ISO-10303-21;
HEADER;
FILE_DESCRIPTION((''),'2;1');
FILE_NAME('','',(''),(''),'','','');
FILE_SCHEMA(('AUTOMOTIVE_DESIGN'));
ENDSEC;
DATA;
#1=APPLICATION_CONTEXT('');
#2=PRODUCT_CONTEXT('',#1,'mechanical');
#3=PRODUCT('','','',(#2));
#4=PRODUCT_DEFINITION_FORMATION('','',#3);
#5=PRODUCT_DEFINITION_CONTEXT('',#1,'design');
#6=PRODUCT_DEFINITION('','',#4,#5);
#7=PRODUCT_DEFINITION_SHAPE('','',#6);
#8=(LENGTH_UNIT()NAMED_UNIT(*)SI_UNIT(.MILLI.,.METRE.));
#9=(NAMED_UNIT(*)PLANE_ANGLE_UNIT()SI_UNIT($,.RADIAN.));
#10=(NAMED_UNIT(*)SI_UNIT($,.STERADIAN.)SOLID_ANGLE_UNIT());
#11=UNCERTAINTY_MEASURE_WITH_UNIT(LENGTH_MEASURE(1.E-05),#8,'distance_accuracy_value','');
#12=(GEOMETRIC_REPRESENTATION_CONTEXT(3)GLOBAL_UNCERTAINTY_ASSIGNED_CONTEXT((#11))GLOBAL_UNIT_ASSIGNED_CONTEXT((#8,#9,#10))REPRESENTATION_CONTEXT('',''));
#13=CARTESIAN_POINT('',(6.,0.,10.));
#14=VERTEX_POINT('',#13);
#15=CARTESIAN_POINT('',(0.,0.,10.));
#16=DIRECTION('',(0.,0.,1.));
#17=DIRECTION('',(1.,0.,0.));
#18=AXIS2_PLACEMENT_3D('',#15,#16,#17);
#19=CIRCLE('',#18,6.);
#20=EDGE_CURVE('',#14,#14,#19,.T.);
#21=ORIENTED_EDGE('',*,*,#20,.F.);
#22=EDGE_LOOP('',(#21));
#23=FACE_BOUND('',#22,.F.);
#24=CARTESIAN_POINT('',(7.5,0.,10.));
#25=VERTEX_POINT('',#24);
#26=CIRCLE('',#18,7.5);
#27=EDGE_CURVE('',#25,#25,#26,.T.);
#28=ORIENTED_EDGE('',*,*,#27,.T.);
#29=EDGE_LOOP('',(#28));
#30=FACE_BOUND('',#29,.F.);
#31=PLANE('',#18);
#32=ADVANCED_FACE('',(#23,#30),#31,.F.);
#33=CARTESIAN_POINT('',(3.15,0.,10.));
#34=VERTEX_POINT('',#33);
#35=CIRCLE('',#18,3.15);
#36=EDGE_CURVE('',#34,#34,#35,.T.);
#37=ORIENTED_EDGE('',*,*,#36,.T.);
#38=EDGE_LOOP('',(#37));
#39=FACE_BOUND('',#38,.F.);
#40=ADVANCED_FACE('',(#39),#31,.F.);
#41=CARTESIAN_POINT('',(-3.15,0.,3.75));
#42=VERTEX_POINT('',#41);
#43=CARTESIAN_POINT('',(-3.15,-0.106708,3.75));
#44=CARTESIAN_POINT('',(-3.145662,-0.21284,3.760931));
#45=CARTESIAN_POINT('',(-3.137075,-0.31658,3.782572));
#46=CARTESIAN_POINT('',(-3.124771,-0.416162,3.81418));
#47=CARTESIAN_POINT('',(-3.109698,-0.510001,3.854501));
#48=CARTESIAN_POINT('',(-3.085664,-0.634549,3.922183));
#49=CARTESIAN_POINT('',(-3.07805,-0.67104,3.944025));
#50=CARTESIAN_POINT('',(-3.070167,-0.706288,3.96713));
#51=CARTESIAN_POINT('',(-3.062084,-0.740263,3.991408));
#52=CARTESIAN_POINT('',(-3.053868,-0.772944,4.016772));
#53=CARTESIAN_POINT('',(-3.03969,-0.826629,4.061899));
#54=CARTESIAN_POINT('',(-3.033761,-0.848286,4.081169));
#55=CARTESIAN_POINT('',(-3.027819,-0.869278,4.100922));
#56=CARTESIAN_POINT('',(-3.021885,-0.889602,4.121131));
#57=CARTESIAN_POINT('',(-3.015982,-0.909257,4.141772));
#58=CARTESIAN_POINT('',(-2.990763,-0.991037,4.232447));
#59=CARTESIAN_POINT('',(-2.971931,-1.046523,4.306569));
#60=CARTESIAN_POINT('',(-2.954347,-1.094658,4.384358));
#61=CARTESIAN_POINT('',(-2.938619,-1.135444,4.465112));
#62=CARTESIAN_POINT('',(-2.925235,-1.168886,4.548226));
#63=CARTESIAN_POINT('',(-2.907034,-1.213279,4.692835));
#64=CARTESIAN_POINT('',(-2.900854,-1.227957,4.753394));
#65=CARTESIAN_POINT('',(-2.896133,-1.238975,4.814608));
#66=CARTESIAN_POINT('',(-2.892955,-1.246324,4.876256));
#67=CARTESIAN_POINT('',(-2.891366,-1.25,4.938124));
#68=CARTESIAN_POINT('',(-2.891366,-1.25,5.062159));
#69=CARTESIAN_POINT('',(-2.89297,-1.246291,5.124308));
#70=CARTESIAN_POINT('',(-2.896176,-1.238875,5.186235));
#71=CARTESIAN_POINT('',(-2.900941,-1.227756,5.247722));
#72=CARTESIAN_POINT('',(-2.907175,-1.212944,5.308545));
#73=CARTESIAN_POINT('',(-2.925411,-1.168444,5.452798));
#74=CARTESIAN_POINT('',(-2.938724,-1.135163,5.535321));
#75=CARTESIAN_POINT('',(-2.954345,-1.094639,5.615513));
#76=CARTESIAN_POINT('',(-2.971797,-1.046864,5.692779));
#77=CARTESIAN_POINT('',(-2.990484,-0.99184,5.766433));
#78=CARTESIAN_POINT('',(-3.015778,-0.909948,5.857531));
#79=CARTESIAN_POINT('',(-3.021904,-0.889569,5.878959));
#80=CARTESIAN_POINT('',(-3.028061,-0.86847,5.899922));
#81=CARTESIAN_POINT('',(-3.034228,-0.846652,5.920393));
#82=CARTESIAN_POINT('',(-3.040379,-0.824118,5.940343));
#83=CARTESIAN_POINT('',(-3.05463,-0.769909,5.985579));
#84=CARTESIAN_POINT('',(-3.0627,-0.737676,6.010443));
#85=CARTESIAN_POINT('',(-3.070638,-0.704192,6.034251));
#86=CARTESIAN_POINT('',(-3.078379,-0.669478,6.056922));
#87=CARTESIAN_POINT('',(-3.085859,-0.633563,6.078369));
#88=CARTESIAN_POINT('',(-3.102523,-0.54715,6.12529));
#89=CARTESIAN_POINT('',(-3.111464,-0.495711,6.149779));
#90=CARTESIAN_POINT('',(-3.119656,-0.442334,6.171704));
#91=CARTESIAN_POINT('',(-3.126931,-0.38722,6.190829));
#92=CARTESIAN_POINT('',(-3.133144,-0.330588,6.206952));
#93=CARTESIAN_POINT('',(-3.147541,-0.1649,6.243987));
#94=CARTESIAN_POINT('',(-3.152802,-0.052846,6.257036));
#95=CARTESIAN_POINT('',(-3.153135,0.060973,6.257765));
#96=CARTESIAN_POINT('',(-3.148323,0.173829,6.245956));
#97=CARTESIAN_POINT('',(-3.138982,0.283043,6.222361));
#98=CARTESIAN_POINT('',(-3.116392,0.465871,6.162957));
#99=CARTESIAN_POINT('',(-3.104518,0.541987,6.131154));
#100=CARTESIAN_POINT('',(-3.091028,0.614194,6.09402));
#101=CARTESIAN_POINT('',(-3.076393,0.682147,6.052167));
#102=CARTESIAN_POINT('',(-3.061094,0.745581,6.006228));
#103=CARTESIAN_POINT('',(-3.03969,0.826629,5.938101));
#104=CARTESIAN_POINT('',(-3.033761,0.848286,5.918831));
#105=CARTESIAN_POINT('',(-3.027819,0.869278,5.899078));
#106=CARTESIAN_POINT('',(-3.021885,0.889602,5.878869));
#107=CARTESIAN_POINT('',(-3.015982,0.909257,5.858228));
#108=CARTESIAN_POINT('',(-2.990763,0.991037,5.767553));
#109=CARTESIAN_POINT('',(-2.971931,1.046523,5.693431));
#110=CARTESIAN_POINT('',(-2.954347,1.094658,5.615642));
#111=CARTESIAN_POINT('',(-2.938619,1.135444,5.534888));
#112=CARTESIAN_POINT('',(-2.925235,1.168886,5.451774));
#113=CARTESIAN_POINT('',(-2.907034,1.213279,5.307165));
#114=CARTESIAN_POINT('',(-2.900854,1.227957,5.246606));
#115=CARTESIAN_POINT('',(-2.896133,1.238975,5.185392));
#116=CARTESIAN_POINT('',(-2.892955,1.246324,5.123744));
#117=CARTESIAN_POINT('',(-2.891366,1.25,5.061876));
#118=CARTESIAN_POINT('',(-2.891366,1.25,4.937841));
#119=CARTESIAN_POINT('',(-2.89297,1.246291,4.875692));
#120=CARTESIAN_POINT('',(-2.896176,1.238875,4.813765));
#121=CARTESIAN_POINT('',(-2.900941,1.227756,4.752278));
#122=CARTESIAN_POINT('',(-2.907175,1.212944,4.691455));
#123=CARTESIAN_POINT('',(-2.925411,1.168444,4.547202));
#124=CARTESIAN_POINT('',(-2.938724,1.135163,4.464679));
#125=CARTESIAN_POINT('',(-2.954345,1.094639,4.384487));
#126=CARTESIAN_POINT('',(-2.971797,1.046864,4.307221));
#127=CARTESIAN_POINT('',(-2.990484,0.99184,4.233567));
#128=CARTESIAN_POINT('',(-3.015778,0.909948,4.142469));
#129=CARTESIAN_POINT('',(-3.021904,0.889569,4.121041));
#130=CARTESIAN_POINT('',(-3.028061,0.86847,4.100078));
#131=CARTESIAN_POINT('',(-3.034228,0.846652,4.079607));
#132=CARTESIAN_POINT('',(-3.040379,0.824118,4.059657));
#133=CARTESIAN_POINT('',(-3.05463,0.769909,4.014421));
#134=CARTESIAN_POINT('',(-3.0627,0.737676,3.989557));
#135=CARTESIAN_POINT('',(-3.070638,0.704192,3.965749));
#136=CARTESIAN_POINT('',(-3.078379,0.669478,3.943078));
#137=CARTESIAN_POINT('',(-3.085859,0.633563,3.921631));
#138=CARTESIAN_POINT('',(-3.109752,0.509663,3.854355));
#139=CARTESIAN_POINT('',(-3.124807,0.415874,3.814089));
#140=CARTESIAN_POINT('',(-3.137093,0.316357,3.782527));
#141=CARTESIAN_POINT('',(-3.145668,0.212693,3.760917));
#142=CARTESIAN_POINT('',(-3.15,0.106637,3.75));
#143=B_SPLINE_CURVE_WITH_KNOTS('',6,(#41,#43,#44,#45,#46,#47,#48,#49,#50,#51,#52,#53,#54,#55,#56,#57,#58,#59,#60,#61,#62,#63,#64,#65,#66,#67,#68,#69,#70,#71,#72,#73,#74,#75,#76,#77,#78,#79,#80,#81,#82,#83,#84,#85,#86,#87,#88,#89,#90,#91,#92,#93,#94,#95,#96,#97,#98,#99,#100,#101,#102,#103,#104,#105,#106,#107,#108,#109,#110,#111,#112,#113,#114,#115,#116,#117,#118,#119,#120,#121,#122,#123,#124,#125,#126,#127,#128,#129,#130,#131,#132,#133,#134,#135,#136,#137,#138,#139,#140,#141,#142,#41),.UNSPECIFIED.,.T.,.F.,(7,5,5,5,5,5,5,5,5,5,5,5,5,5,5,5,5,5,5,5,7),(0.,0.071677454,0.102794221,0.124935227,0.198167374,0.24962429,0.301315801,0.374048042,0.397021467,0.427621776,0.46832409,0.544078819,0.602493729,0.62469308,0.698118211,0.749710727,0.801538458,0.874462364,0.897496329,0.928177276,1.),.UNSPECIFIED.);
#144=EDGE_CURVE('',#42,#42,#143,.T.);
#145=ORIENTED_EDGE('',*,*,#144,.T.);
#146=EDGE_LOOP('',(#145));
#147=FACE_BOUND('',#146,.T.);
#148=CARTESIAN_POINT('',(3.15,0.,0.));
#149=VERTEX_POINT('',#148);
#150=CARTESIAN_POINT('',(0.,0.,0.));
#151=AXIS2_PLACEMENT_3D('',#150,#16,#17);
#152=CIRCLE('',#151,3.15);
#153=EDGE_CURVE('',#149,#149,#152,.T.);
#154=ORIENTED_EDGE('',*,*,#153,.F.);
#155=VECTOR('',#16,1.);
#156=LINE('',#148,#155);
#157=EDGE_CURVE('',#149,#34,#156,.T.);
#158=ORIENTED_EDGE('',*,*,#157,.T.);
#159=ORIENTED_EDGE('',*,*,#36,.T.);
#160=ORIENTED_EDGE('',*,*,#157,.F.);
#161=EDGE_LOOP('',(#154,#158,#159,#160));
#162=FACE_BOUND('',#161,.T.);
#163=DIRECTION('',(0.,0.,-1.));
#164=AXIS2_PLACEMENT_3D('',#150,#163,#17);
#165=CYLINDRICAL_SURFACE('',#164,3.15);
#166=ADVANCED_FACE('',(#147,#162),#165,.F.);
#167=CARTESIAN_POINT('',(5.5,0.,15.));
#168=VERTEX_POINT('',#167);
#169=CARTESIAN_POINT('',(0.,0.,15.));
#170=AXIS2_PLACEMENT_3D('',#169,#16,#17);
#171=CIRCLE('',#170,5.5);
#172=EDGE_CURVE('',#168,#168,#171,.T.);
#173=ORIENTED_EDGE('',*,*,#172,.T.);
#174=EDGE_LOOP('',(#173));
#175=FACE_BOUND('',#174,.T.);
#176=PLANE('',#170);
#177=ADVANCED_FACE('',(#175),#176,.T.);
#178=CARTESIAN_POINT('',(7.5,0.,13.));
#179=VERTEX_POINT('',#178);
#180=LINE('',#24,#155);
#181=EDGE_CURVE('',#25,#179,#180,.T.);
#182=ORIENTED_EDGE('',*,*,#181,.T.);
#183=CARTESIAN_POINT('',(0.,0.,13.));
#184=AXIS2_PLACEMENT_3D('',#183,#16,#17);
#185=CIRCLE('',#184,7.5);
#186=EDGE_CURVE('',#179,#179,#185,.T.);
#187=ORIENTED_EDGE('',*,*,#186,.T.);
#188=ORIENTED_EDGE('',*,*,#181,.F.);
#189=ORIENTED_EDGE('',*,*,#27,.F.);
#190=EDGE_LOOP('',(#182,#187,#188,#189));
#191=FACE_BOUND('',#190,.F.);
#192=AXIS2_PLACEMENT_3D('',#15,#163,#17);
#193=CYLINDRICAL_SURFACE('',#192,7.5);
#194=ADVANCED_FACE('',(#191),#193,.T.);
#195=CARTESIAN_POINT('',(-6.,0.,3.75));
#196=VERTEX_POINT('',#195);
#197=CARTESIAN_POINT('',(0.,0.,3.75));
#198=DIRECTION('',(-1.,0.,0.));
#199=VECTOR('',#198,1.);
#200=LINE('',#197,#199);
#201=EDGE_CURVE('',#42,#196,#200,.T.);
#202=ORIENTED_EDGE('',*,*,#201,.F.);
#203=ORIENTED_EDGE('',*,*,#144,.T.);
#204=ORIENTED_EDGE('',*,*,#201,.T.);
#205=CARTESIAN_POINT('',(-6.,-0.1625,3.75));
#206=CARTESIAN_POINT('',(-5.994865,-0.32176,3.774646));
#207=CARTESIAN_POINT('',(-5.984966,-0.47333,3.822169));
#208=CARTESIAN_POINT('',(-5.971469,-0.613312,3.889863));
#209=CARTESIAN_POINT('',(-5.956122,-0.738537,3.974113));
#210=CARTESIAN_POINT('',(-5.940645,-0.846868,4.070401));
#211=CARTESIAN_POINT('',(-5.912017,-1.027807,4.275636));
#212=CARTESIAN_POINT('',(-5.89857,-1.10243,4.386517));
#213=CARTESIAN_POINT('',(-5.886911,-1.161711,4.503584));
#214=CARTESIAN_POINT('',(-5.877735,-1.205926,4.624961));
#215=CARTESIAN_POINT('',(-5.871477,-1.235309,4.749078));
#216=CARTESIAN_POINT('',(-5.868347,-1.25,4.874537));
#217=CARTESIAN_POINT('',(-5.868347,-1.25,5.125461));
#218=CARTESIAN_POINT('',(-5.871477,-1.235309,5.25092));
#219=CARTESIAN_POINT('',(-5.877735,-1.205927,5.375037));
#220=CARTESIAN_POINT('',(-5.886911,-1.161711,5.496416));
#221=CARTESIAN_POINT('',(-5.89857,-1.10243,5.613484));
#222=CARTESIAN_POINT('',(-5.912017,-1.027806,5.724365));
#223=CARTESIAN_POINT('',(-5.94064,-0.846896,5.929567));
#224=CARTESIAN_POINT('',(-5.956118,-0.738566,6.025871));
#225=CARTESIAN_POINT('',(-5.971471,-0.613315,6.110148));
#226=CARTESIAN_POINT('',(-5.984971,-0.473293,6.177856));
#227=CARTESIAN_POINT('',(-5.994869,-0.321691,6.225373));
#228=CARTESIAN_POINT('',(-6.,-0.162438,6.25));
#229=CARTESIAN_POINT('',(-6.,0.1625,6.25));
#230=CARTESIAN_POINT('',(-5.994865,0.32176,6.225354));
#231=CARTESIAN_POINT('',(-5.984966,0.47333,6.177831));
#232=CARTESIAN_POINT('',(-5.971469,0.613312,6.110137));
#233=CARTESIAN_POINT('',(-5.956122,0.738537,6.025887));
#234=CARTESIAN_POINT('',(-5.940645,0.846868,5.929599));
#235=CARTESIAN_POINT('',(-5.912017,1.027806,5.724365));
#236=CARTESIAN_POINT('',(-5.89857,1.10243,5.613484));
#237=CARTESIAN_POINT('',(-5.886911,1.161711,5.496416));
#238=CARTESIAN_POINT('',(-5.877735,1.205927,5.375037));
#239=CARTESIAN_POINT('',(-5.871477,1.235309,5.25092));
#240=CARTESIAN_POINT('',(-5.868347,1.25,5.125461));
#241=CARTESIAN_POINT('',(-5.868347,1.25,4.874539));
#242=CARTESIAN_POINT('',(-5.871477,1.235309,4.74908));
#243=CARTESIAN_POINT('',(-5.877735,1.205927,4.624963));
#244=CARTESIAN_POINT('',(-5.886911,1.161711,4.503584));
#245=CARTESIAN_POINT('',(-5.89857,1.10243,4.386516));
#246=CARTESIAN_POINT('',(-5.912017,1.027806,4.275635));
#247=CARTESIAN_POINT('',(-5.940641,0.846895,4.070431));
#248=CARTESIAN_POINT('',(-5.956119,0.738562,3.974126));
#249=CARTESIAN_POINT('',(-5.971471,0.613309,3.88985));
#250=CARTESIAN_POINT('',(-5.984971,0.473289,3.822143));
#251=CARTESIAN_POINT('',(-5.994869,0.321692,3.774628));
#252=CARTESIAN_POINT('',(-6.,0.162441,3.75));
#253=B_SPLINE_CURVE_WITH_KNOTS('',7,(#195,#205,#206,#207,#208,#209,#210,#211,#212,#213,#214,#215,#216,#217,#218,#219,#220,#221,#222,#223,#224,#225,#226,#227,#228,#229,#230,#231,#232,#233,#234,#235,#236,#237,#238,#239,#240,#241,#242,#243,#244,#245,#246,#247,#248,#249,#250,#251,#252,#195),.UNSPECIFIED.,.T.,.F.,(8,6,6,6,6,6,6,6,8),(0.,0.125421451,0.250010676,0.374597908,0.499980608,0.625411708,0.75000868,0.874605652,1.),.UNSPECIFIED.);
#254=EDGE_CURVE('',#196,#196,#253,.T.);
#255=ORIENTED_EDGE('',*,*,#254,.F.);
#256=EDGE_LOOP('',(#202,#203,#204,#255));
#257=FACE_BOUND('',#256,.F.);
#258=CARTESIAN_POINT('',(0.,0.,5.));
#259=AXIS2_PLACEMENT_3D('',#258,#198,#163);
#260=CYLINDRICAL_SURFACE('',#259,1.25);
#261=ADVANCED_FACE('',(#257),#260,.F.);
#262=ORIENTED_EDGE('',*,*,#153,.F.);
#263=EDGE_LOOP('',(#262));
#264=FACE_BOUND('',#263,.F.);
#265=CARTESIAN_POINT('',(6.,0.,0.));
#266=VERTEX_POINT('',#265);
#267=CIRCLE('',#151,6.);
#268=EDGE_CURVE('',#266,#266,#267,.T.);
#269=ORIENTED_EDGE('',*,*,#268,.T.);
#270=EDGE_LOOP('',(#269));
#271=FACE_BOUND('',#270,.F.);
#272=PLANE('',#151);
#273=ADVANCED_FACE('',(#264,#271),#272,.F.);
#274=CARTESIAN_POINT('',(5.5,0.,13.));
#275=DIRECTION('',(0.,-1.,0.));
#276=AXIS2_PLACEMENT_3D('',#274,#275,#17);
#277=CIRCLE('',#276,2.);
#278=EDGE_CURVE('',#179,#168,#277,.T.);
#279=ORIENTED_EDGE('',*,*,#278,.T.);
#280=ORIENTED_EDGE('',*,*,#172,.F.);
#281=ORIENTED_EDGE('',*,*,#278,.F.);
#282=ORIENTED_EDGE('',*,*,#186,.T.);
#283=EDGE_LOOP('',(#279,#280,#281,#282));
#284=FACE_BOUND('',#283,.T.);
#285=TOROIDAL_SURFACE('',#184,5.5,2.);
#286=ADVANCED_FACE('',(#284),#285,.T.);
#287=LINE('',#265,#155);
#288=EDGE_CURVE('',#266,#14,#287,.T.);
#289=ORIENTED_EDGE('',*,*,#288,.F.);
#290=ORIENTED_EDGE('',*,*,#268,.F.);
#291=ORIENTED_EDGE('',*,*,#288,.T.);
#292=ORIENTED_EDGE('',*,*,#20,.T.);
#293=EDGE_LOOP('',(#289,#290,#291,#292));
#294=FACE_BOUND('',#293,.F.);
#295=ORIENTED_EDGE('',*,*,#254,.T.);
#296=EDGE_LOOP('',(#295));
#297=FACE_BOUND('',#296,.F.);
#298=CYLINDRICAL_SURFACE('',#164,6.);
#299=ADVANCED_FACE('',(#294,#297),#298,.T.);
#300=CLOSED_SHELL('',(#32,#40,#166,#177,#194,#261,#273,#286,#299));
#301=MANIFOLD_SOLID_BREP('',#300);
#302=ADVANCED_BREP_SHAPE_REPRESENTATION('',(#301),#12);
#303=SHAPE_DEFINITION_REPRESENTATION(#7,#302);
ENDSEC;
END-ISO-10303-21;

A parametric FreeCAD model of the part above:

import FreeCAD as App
import Part
import Sketcher
Q = App.Units.Quantity


def edges_at(feature, points):
    """Names of the edges that pass closest to the given points."""
    edges = feature.Shape.Edges
    near = lambda p: min(range(len(edges)), key=lambda i: edges[i].distToShape(Part.Vertex(*p))[0])
    return sorted({f"Edge{near(p) + 1}" for p in points})

doc = App.newDocument("Part")
body = doc.addObject("PartDesign::Body", "Body")

# Sketch on XY plane
sketch1 = body.newObject("Sketcher::SketchObject", "Sketch")
sketch1.AttachmentSupport = (doc.getObject("XY_Plane"), [""])
sketch1.MapMode = "FlatFace"
sketch1.addGeometry([
    Part.Circle(App.Vector(0, 0, 0), App.Vector(0, 0, 1), 6),
    Part.Circle(App.Vector(0, 0, 0), App.Vector(0, 0, 1), 3.15),
], False)
sketch1.addConstraint([
    Sketcher.Constraint("Coincident", 0, 3, -1, 1),
    Sketcher.Constraint("Coincident", 1, 3, -1, 1),
    Sketcher.Constraint("Diameter", 0, Q("12 mm")),
    Sketcher.Constraint("Diameter", 1, Q("6.3 mm")),
])
pad1 = body.newObject("PartDesign::Pad", "Pad")
pad1.Profile = sketch1
pad1.Length = 10

# Sketch on XY plane
sketch2 = body.newObject("Sketcher::SketchObject", "Sketch001")
sketch2.AttachmentSupport = (doc.getObject("XY_Plane"), [""])
sketch2.MapMode = "FlatFace"
sketch2.AttachmentOffset = App.Placement(App.Vector(0, 0, 10), App.Rotation())
sketch2.addGeometry(Part.Circle(App.Vector(0, 0, 0), App.Vector(0, 0, 1), 7.5), False)
sketch2.addConstraint([
    Sketcher.Constraint("Coincident", 0, 3, -1, 1),
    Sketcher.Constraint("Diameter", 0, Q("15 mm")),
])
pad2 = body.newObject("PartDesign::Pad", "Pad001")
pad2.Profile = sketch2
pad2.Length = 5
doc.recompute()

fillet = body.newObject("PartDesign::Fillet", "Fillet")
fillet.Base = (pad2, edges_at(pad2, [(-7.5, 0, 15)]))
fillet.Radius = 2

# Sketch on YZ plane
sketch3 = body.newObject("Sketcher::SketchObject", "Sketch002")
sketch3.AttachmentSupport = (doc.getObject("YZ_Plane"), [""])
sketch3.MapMode = "FlatFace"
sketch3.addGeometry(Part.Circle(App.Vector(0, 5, 0), App.Vector(0, 0, 1), 1.25), False)
sketch3.addConstraint([
    Sketcher.Constraint("PointOnObject", 0, 3, -2),
    Sketcher.Constraint("Diameter", 0, Q("2.5 mm")),
    Sketcher.Constraint("DistanceY", -1, 1, 0, 3, Q("5 mm")),
])
doc.recompute()
hole = body.newObject("PartDesign::Hole", "Hole")
hole.Profile = sketch3
hole.ThreadType = "None"
hole.Diameter = 2.5
hole.DepthType = "ThroughAll"

doc.recompute()
